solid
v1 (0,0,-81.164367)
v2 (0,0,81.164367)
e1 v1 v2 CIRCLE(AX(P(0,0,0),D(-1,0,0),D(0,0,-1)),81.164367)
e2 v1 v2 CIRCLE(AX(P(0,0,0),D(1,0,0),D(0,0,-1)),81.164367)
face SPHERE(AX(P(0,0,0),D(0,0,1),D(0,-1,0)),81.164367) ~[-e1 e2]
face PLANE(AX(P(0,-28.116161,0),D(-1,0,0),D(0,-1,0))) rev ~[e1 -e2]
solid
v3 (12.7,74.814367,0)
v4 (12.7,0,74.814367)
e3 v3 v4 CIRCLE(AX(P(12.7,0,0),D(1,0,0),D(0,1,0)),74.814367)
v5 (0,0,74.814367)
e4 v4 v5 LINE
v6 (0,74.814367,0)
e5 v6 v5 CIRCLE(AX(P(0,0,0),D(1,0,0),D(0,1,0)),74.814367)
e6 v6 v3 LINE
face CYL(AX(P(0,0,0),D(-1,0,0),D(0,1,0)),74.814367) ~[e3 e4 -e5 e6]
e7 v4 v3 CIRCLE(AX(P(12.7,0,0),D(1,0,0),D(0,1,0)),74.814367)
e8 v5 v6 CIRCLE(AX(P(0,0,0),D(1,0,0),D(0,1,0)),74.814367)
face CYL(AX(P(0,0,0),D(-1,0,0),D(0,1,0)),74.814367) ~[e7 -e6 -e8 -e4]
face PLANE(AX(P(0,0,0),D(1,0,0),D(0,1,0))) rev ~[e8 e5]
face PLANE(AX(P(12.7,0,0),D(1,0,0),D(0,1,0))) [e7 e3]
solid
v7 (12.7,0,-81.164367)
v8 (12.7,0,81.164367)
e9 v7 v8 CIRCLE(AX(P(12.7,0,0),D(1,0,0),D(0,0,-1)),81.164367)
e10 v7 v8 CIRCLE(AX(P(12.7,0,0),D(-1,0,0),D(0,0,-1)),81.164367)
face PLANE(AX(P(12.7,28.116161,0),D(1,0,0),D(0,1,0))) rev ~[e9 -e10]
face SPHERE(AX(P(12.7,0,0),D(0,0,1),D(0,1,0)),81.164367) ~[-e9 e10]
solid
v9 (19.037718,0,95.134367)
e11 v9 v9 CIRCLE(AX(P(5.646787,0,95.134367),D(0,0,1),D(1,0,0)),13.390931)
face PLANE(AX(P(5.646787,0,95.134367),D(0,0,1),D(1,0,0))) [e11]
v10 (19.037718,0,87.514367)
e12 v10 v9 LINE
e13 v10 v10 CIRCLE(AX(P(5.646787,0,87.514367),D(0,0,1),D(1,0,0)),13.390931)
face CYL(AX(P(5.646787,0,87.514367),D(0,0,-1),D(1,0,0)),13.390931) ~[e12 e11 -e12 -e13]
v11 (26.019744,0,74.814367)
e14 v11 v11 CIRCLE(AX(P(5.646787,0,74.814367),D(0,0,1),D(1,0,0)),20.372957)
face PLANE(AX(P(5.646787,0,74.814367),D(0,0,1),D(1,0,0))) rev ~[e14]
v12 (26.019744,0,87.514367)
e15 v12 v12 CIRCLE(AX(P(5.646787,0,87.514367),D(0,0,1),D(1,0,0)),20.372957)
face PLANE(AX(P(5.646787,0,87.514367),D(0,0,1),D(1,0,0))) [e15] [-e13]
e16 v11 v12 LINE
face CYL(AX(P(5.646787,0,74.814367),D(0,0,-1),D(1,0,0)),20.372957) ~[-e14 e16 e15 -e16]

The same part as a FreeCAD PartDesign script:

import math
import FreeCAD as App
import Part
import Sketcher
from FreeCAD import Vector
Q = App.Units.Quantity

doc = App.newDocument("Part")
body = doc.addObject("PartDesign::Body", "Body")
body.AllowCompound = True

sketch1 = body.newObject("Sketcher::SketchObject", "Sketch")
sketch1.AttachmentSupport = (doc.getObject("YZ_Plane"), [""])
sketch1.MapMode = "FlatFace"
sketch1.addGeometry(Part.Circle(Vector(0, 0, 0), Vector(0, 0, 1), 75), False)
sketch1.addConstraint([
    Sketcher.Constraint("Coincident", 0, 3, -1, 1),
    Sketcher.Constraint("Diameter", 0, 149.628734),
])
pad1 = body.newObject("PartDesign::Pad", "Pad")
pad1.Profile = sketch1
pad1.Length = Q("0.5 in")

sketch2 = body.newObject("Sketcher::SketchObject", "Sketch001")
sketch2.AttachmentSupport = (doc.getObject("XY_Plane"), [""])
sketch2.MapMode = "FlatFace"
sketch2.AttachmentOffset = App.Placement(Vector(0, 0, 74.814367), App.Rotation())
sketch2.addGeometry(Part.Circle(Vector(6, 0, 0), Vector(0, 0, 1), 20), False)
sketch2.addConstraint([
    Sketcher.Constraint("PointOnObject", 0, 3, -1),
    Sketcher.Constraint("Diameter", 0, 40.745914),
    Sketcher.Constraint("DistanceX", -1, 1, 0, 3, 5.646787),
])
pad2 = body.newObject("PartDesign::Pad", "Pad001")
pad2.Profile = sketch2
pad2.Length = Q("0.5 in")

sketch3 = body.newObject("Sketcher::SketchObject", "Sketch002")
sketch3.AttachmentSupport = (doc.getObject("XY_Plane"), [""])
sketch3.MapMode = "FlatFace"
sketch3.AttachmentOffset = App.Placement(Vector(0, 0, 87.514367), App.Rotation())
sketch3.addGeometry(Part.Circle(Vector(6, 0, 0), Vector(0, 0, 1), 13), False)
sketch3.addConstraint([
    Sketcher.Constraint("PointOnObject", 0, 3, -1),
    Sketcher.Constraint("Diameter", 0, 26.781862),
    Sketcher.Constraint("DistanceX", -1, 1, 0, 3, 5.646787),
])
pad3 = body.newObject("PartDesign::Pad", "Pad002")
pad3.Profile = sketch3
pad3.Length = Q("0.3 in")
body2 = doc.addObject("PartDesign::Body", "Body001")

sketch4 = body2.newObject("Sketcher::SketchObject", "Sketch003")
sketch4.AttachmentSupport = (doc.getObject("YZ_Plane001"), [""])
sketch4.MapMode = "FlatFace"
sketch4.AttachmentOffset = App.Placement(Vector(0, 0, 0.5 * 25.4), App.Rotation())
sketch4.addGeometry([
    Part.ArcOfCircle(Part.Circle(Vector(0, 0, 0), Vector(0, 0, 1), 81), math.radians(-90), math.radians(90)),
    Part.LineSegment(Vector(0, 81, 0), Vector(0, -81, 0)),
], False)
sketch4.addConstraint([
    Sketcher.Constraint("Coincident", 0, 1, 1, 2),
    Sketcher.Constraint("Coincident", 1, 1, 0, 2),
    Sketcher.Constraint("Vertical", 1),
    Sketcher.Constraint("Coincident", 0, 3, -1, 1),
    Sketcher.Constraint("PointOnObject", 0, 1, -2),
    Sketcher.Constraint("Radius", 0, 81.164367),
])
revolution = body2.newObject("PartDesign::Revolution", "Revolution")
revolution.Profile = sketch4
revolution.ReferenceAxis = (sketch4, ["V_Axis"])
revolution.Angle = 180
revolution.Reversed = True
body3 = doc.addObject("PartDesign::Body", "Body002")

sketch5 = body3.newObject("Sketcher::SketchObject", "Sketch004")
sketch5.AttachmentSupport = (doc.getObject("YZ_Plane002"), [""])
sketch5.MapMode = "FlatFace"
sketch5.addGeometry([
    Part.LineSegment(Vector(0, 81, 0), Vector(0, -81, 0)),
    Part.ArcOfCircle(Part.Circle(Vector(0, 0, 0), Vector(0, 0, 1), 81), math.radians(90), math.radians(270)),
], False)
sketch5.addConstraint([
    Sketcher.Constraint("Coincident", 0, 1, 1, 1),
    Sketcher.Constraint("Coincident", 1, 2, 0, 2),
    Sketcher.Constraint("Vertical", 0),
    Sketcher.Constraint("Coincident", 1, 3, -1, 1),
    Sketcher.Constraint("PointOnObject", 0, 1, -2),
    Sketcher.Constraint("Radius", 1, 81.164367),
])
revolution2 = body3.newObject("PartDesign::Revolution", "Revolution001")
revolution2.Profile = sketch5
revolution2.ReferenceAxis = (sketch5, ["V_Axis"])
revolution2.Angle = 180
revolution2.Reversed = True

doc.recompute()
